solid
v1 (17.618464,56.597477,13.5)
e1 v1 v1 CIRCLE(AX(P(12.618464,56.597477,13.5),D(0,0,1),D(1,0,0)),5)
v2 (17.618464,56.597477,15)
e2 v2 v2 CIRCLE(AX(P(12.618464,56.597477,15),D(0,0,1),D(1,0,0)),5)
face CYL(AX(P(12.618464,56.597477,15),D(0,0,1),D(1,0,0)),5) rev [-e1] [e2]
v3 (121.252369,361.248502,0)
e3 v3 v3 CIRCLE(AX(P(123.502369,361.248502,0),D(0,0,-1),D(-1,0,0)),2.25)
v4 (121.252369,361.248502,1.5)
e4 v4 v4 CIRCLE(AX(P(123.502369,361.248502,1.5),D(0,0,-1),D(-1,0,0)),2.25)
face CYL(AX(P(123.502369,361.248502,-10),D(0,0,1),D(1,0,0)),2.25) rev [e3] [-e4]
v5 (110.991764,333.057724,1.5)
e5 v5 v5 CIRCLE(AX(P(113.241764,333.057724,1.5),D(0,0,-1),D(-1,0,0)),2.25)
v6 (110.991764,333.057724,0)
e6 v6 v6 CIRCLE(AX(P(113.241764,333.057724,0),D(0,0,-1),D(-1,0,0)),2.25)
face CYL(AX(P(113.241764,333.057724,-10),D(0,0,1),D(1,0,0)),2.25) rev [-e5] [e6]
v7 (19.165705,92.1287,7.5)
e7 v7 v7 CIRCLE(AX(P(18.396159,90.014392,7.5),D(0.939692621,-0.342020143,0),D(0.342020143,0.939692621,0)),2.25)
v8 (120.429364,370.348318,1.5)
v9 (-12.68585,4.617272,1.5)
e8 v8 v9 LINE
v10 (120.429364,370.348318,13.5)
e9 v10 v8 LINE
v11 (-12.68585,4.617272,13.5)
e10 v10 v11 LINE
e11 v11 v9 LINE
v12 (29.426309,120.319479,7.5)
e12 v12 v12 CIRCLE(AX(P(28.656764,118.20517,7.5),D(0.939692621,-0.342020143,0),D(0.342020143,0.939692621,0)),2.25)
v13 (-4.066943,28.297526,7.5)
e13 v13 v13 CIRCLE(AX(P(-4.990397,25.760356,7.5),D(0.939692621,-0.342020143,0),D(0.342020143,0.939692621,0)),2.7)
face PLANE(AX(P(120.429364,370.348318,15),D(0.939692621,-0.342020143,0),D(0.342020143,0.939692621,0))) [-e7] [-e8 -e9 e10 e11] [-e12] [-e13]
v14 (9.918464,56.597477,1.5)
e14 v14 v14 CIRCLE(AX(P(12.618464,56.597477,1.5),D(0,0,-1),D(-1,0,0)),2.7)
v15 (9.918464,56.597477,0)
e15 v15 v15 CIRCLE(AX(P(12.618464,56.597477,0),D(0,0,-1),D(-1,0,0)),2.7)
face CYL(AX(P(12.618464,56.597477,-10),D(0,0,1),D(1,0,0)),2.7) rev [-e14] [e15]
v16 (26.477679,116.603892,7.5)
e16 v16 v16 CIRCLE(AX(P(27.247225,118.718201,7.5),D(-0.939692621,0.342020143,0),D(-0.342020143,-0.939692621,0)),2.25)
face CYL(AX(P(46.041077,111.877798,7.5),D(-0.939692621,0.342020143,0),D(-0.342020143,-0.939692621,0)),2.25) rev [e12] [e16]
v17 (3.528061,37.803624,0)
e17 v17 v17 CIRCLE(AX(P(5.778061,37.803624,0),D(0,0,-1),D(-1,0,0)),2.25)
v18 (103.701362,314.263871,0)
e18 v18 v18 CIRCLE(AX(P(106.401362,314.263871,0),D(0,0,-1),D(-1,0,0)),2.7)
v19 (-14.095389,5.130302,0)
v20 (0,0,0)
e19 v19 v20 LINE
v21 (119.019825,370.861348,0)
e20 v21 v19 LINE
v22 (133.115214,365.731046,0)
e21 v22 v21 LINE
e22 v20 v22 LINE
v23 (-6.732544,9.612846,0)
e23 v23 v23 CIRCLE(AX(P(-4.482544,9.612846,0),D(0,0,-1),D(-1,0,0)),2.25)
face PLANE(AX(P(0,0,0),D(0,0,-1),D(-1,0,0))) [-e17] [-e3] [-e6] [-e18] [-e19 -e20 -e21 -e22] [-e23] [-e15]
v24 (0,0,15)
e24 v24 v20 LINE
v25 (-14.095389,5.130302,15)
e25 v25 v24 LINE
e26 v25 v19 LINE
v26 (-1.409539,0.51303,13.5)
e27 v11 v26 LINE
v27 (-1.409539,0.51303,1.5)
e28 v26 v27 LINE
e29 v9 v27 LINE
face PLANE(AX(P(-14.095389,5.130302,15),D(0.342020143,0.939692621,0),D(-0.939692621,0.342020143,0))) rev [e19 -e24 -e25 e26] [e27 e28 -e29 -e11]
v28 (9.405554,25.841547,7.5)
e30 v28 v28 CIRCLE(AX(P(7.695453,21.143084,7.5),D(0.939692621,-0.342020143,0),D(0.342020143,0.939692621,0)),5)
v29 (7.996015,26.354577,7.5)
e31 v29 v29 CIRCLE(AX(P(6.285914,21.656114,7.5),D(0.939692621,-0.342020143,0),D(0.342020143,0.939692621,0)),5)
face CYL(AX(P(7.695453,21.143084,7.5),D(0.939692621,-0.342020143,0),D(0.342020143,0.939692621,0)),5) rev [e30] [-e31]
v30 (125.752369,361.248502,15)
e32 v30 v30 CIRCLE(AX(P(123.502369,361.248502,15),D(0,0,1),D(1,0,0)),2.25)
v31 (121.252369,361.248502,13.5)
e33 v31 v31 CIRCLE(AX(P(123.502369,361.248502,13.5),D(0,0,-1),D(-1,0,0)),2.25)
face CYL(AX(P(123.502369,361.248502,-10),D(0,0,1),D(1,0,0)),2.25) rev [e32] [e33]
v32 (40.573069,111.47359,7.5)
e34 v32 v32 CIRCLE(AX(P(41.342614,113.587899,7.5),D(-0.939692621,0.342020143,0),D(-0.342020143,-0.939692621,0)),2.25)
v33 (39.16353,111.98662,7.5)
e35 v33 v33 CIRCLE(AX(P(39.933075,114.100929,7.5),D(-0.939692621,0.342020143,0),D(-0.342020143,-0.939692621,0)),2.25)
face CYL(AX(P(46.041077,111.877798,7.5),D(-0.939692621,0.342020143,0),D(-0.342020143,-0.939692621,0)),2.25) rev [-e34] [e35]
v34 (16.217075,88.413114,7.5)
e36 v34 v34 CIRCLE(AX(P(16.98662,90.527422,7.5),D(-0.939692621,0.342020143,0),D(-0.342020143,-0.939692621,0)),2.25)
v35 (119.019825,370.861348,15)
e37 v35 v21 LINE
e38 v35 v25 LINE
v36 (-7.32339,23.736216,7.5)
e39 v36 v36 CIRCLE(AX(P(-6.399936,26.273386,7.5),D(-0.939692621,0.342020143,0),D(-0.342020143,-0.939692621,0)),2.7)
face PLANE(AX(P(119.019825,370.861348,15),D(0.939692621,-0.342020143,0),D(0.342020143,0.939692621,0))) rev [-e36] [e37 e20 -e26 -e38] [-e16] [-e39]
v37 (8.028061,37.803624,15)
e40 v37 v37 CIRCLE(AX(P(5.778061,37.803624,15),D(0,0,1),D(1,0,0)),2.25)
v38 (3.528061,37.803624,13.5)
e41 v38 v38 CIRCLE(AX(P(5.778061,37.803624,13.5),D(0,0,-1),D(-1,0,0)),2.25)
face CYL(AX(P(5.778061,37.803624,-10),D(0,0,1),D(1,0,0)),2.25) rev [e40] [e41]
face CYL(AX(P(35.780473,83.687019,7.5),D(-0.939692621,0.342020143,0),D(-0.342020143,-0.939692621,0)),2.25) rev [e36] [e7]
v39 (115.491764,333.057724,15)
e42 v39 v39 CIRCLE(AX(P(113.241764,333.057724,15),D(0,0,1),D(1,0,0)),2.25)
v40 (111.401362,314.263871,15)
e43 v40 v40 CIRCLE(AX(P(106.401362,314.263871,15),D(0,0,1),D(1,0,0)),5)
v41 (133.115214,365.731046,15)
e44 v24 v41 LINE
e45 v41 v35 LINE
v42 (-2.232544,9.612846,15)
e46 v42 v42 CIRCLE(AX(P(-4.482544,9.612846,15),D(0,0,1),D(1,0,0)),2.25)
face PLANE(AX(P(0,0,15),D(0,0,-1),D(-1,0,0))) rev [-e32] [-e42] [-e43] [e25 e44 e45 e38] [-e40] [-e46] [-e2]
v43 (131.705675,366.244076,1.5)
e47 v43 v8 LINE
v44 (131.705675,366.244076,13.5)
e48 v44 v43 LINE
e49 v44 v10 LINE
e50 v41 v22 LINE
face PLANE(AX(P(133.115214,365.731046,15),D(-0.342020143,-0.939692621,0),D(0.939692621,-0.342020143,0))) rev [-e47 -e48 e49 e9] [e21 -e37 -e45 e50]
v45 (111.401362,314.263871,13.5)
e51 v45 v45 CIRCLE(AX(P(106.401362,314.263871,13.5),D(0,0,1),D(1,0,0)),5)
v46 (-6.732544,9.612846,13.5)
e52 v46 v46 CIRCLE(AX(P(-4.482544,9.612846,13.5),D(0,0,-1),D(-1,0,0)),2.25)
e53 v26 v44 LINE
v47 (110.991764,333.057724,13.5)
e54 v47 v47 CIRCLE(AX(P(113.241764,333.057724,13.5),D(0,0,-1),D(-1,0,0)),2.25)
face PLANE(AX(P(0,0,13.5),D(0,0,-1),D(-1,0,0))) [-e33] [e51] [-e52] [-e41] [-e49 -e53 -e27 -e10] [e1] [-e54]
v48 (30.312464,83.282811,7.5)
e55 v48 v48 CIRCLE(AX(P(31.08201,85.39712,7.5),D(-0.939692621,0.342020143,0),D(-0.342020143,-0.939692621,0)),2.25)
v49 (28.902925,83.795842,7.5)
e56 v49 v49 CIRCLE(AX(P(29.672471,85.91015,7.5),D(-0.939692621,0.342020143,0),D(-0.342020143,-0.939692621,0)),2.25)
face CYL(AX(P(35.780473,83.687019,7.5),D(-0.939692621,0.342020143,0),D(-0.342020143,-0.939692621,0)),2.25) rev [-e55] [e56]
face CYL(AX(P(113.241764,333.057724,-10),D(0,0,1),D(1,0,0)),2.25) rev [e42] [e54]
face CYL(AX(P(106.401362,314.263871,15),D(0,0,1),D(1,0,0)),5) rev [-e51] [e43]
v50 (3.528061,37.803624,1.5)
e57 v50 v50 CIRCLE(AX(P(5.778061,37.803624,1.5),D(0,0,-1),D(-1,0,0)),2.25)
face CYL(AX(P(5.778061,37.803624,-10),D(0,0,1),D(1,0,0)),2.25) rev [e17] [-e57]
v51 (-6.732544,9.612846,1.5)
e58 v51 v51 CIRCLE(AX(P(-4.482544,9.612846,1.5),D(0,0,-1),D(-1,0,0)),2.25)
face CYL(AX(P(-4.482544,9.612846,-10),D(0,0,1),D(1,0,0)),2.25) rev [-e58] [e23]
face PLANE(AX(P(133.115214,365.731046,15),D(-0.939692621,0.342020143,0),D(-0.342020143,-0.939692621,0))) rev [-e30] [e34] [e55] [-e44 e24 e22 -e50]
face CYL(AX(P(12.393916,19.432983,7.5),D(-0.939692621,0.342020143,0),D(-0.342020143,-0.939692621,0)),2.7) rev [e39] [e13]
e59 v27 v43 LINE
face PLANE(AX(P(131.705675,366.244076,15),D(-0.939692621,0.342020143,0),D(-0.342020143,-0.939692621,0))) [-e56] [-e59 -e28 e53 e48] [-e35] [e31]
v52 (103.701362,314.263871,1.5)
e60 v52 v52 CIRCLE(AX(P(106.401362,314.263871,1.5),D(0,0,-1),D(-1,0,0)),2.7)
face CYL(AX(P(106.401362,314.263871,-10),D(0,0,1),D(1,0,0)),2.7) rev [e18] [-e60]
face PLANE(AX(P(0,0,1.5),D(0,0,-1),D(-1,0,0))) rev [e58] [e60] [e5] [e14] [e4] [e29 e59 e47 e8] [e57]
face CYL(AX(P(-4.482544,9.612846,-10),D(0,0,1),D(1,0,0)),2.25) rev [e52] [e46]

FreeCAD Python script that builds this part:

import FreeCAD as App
import Part
import Sketcher
from FreeCAD import Vector
Q = App.Units.Quantity


def faces_at(feature, points):
    """Names of the faces that lie closest to the given points."""
    faces = feature.Shape.Faces
    near = lambda p: min(range(len(faces)), key=lambda i: faces[i].distToShape(Part.Vertex(*p))[0])
    return sorted({f"Face{near(p) + 1}" for p in points})

doc = App.newDocument("Part")
body = doc.addObject("PartDesign::Body", "Body")

# Sketch on XY plane
sketch1 = body.newObject("Sketcher::SketchObject", "Sketch")
sketch1.AttachmentSupport = (doc.getObject("XY_Plane"), [""])
sketch1.MapMode = "FlatFace"
sketch1.addGeometry([
    Part.LineSegment(Vector(0, 0, 0), Vector(133.115214, 365.731046, 0)),
    Part.LineSegment(Vector(133.115214, 365.731046, 0), Vector(119.019825, 370.861348, 0)),
    Part.LineSegment(Vector(119.019825, 370.861348, 0), Vector(-14.095389, 5.130302, 0)),
    Part.LineSegment(Vector(-14.095389, 5.130302, 0), Vector(0, 0, 0)),
], False)
sketch1.addConstraint([
    Sketcher.Constraint("Coincident", 0, 2, 1, 1),
    Sketcher.Constraint("Coincident", 1, 2, 2, 1),
    Sketcher.Constraint("Coincident", 2, 2, 3, 1),
    Sketcher.Constraint("Coincident", 3, 2, 0, 1),
    Sketcher.Constraint("Coincident", 3, 2, -1, 1),
    Sketcher.Constraint("Perpendicular", 0, 1),
    Sketcher.Constraint("Perpendicular", 1, 2),
    Sketcher.Constraint("Perpendicular", 2, 3),
    Sketcher.Constraint("Angle", 0, Q("70 deg")),
    Sketcher.Constraint("Distance", 1, 15.0),
    Sketcher.Constraint("Distance", 0, 389.20285),
])
pad1 = body.newObject("PartDesign::Pad", "Pad")
pad1.Profile = sketch1
pad1.Length = 15
doc.recompute()

thickness = body.newObject("PartDesign::Thickness", "Thickness")
thickness.Base = (pad1, faces_at(pad1, [(126.068, 368.296, 7.5), (-7.048, 2.565, 7.5)]))
thickness.Value = 1.5
thickness.Reversed = True
thickness.Join = "Intersection"

# Sketch on XY plane
sketch2 = body.newObject("Sketcher::SketchObject", "Sketch001")
sketch2.AttachmentSupport = (doc.getObject("XY_Plane"), [""])
sketch2.MapMode = "FlatFace"
sketch2.AttachmentOffset = App.Placement(Vector(0, 0, 15), App.Rotation())
sketch2.addGeometry([
    Part.Circle(Vector(-4.482544, 9.612846, 0), Vector(0, 0, 1), 2.25),  # 0
    Part.Circle(Vector(123.502369, 361.248502, 0), Vector(0, 0, 1), 2.25),  # 1
    Part.Circle(Vector(113.241764, 333.057724, 0), Vector(0, 0, 1), 2.25),  # 2
    Part.Circle(Vector(5.778061, 37.803624, 0), Vector(0, 0, 1), 2.25),  # 3
    Part.Circle(Vector(12.618464, 56.597477, 0), Vector(0, 0, 1), 2.7),  # 4
    Part.Circle(Vector(106.401362, 314.263871, 0), Vector(0, 0, 1), 2.7),  # 5
], False)
sketch2.addConstraint([
    Sketcher.Constraint("Equal", 0, 1),
    Sketcher.Constraint("Equal", 1, 2),
    Sketcher.Constraint("Equal", 2, 3),
    Sketcher.Constraint("Equal", 4, 5),
    Sketcher.Constraint("Diameter", 0, 4.5),
    Sketcher.Constraint("Diameter", 4, 5.4),
    Sketcher.Constraint("DistanceY", 3, 3, 2, 3, 295.254099),
    Sketcher.Constraint("DistanceX", 4, 3, 2, 3, 100.623301),
    Sketcher.Constraint("DistanceX", 3, 3, 5, 3, 100.623301),
    Sketcher.Constraint("DistanceX", -1, 1, 1, 3, 123.502369),
    Sketcher.Constraint("DistanceX", -1, 1, 3, 3, 5.778061),
    Sketcher.Constraint("DistanceY", -1, 1, 5, 3, 314.263871),
    Sketcher.Constraint("DistanceY", 2, 3, 1, 3, 28.190779),
    Sketcher.Constraint("DistanceY", 0, 3, 3, 3, 28.190779),
    Sketcher.Constraint("DistanceY", 0, 3, 4, 3, 46.984631),
    Sketcher.Constraint("DistanceY", 5, 3, 1, 3, 46.984631),
    Sketcher.Constraint("DistanceX", 0, 3, -1, 1, 4.482544),
    Sketcher.Constraint("DistanceX", -1, 1, 2, 3, 113.241764),
])
pocket1 = body.newObject("PartDesign::Pocket", "Pocket")
pocket1.Profile = sketch2
pocket1.Length = 25

# Sketch on an angled plane
sketch3 = body.newObject("Sketcher::SketchObject", "Sketch002")
sketch3.Placement = App.Placement(Vector(-14.095389, 5.130302, 0), App.Rotation(Vector(0, 0, 1), Vector(0.342020143, 0.939692621, 0), Vector(-0.939692621, 0.342020143, 0), "ZXY"))
sketch3.addGeometry([
    Part.Circle(Vector(7.5, 120.877717, 0), Vector(0, 0, 1), 2.25),
    Part.Circle(Vector(7.5, 90.877717, 0), Vector(0, 0, 1), 2.25),
    Part.Circle(Vector(7.5, 22.5, 0), Vector(0, 0, 1), 2.7),
], False)
sketch3.addConstraint([
    Sketcher.Constraint("Equal", 0, 1),
    Sketcher.Constraint("Vertical", 0, 3, 1, 3),
    Sketcher.Constraint("Vertical", 1, 3, 2, 3),
    Sketcher.Constraint("Diameter", 0, 4.5),
    Sketcher.Constraint("Diameter", 2, 5.4),
    Sketcher.Constraint("DistanceY", 1, 3, 0, 3, 30.0),
    Sketcher.Constraint("DistanceX", -1, 1, 0, 3, 7.5),
    Sketcher.Constraint("DistanceY", -1, 1, 2, 3, 22.5),
    Sketcher.Constraint("DistanceY", -1, 1, 0, 3, 120.877717),
])
pocket2 = body.newObject("PartDesign::Pocket", "Pocket001")
pocket2.Profile = sketch3
pocket2.Length = 20

# Sketch on an angled plane
sketch4 = body.newObject("Sketcher::SketchObject", "Sketch003")
sketch4.Placement = App.Placement(Vector(0, 0, 0), App.Rotation(Vector(0, 0, -1), Vector(0.342020143, 0.939692621, 0), Vector(0.939692621, -0.342020143, 0), "ZXY"))
sketch4.addGeometry(Part.Circle(Vector(-7.5, 22.5, 0), Vector(0, 0, 1), 5), False)
sketch4.addConstraint([
    Sketcher.Constraint("Diameter", 0, 10.0),
    Sketcher.Constraint("DistanceX", 0, 3, -1, 1, 7.5),
    Sketcher.Constraint("DistanceY", -1, 1, 0, 3, 22.5),
])
doc.recompute()
hole = body.newObject("PartDesign::Hole", "Hole")
hole.Profile = sketch4
hole.ThreadType = "None"
hole.Diameter = 10
hole.DepthType = "Dimension"
hole.Depth = 1.5
hole.DrillPoint = "Flat"

# Sketch on XY plane
sketch5 = body.newObject("Sketcher::SketchObject", "Sketch004")
sketch5.AttachmentSupport = (doc.getObject("XY_Plane"), [""])
sketch5.MapMode = "FlatFace"
sketch5.AttachmentOffset = App.Placement(Vector(0, 0, 15), App.Rotation())
sketch5.addGeometry([
    Part.Circle(Vector(106.401362, 314.263871, 0), Vector(0, 0, 1), 5),
    Part.Circle(Vector(12.618464, 56.597477, 0), Vector(0, 0, 1), 5),
], False)
sketch5.addConstraint([
    Sketcher.Constraint("Equal", 0, 1),
    Sketcher.Constraint("Diameter", 0, 10.0),
    Sketcher.Constraint("DistanceX", -1, 1, 0, 3, 106.401362),
    Sketcher.Constraint("DistanceY", -1, 1, 0, 3, 314.263871),
    Sketcher.Constraint("DistanceX", -1, 1, 1, 3, 12.618464),
    Sketcher.Constraint("DistanceY", -1, 1, 1, 3, 56.597477),
])
doc.recompute()
hole2 = body.newObject("PartDesign::Hole", "Hole001")
hole2.Profile = sketch5
hole2.ThreadType = "None"
hole2.Diameter = 10
hole2.DepthType = "Dimension"
hole2.Depth = 1.5
hole2.DrillPoint = "Flat"

doc.recompute()
